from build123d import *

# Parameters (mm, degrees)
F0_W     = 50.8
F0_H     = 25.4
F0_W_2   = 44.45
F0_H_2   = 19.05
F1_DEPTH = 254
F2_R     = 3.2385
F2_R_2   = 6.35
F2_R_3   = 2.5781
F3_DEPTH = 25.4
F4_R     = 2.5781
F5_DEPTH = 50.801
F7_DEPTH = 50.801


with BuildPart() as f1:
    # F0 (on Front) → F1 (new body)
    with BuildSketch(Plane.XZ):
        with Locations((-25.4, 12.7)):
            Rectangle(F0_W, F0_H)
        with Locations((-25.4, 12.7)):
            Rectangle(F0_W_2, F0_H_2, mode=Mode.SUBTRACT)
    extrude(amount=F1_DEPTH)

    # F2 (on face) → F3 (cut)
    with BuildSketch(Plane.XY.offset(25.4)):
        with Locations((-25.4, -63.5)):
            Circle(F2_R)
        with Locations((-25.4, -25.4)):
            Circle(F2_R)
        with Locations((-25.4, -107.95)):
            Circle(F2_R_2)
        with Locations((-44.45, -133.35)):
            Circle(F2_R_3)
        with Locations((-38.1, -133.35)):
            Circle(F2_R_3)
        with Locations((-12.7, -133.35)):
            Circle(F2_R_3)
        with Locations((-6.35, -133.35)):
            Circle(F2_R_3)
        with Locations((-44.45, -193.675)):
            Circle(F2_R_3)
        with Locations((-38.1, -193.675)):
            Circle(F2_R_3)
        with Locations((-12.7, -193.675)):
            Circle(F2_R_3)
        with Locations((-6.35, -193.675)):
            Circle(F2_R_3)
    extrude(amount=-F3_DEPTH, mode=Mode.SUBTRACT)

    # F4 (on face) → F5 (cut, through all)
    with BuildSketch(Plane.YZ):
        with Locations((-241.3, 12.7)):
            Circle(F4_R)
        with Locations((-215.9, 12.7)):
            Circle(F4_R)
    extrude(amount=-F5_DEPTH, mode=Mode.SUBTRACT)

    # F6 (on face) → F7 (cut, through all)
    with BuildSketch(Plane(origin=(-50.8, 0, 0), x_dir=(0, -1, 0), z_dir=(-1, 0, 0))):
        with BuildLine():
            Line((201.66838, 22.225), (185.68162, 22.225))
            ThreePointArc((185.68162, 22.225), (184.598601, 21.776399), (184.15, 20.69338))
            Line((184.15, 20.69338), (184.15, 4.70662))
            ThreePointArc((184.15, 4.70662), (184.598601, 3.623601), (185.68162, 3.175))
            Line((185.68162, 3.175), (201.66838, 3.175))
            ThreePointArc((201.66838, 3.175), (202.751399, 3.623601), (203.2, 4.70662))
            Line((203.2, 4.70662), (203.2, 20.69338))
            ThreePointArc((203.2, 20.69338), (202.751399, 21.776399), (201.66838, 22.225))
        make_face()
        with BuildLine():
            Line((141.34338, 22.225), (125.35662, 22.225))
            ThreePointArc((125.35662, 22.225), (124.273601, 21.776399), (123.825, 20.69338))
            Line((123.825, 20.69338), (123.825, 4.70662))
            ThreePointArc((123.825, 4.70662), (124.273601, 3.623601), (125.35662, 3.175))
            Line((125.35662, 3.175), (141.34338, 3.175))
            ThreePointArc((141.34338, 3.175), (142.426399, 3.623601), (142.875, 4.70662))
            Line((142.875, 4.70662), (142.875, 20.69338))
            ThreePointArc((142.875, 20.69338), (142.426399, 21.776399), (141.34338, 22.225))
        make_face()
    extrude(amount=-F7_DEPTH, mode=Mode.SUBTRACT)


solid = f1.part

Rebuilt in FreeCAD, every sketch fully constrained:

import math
import FreeCAD as App
import Part
import Sketcher

V = App.Vector
Q = App.Units.Quantity


def add_polygon(sketch, points):
    """Adds a closed chain of lines whose ends are joined by coincident constraints."""
    first, n = sketch.GeometryCount, len(points)
    for a, b in zip(points, points[1:] + points[:1]):
        sketch.addGeometry(Part.LineSegment(App.Vector(*a, 0), App.Vector(*b, 0)), False)
    for i in range(n):
        sketch.addConstraint(Sketcher.Constraint("Coincident", first + i, 2, first + (i + 1) % n, 1))

doc = App.newDocument("Part")
body = doc.addObject("PartDesign::Body", "Body")

sketch1 = doc.addObject("Sketcher::SketchObject", "Sketch")
body.addObject(sketch1)
sketch1.AttachmentSupport = (doc.XZ_Plane, [""])
sketch1.MapMode = "FlatFace"
add_polygon(sketch1, [(-50.8, 25.4), (-50.8, 0), (0, 0), (0, 25.4)])
add_polygon(sketch1, [(-3.175, 3.175), (-47.625, 3.175), (-47.625, 22.225), (-3.175, 22.225)])
sketch1.addConstraint([
    Sketcher.Constraint("Vertical", 0),
    Sketcher.Constraint("Horizontal", 1),
    Sketcher.Constraint("Vertical", 2),
    Sketcher.Constraint("Horizontal", 3),
    Sketcher.Constraint("Horizontal", 4),
    Sketcher.Constraint("Vertical", 5),
    Sketcher.Constraint("Horizontal", 6),
    Sketcher.Constraint("Vertical", 7),
    Sketcher.Constraint("Coincident", 1, 2, -1, 1),
    Sketcher.Constraint("DistanceX", 1, 1, 1, 2, Q("2 in")),
    Sketcher.Constraint("DistanceY", 0, 2, 0, 1, Q("1 in")),
    Sketcher.Constraint("DistanceX", 4, 2, 4, 1, Q("1.75 in")),
    Sketcher.Constraint("DistanceY", 5, 1, 5, 2, Q("0.75 in")),
    Sketcher.Constraint("DistanceX", 4, 2, -1, 1, Q("1.875 in")),
    Sketcher.Constraint("DistanceY", -1, 1, 4, 2, Q("0.125 in")),
])
pad1 = doc.addObject("PartDesign::Pad", "Pad")
body.addObject(pad1)
pad1.Profile = sketch1
pad1.Length = Q("10 in")

sketch2 = doc.addObject("Sketcher::SketchObject", "Sketch001")
body.addObject(sketch2)
sketch2.AttachmentSupport = (doc.XY_Plane, [""])
sketch2.MapMode = "FlatFace"
sketch2.AttachmentOffset = App.Placement(V(0, 0, 1 * 25.4), App.Rotation())
sketch2.addGeometry([
    Part.Circle(V(-25.4, -63.5, 0), V(0, 0, 1), 3.2385),
    Part.Circle(V(-25.4, -25.4, 0), V(0, 0, 1), 3.2385),
    Part.Circle(V(-25.4, -107.95, 0), V(0, 0, 1), 6.35),
    Part.Circle(V(-44.45, -133.35, 0), V(0, 0, 1), 2.5781),
    Part.Circle(V(-38.1, -133.35, 0), V(0, 0, 1), 2.5781),
    Part.Circle(V(-12.7, -133.35, 0), V(0, 0, 1), 2.5781),
    Part.Circle(V(-6.35, -133.35, 0), V(0, 0, 1), 2.5781),
    Part.Circle(V(-44.45, -193.675, 0), V(0, 0, 1), 2.5781),
    Part.Circle(V(-38.1, -193.675, 0), V(0, 0, 1), 2.5781),
    Part.Circle(V(-12.7, -193.675, 0), V(0, 0, 1), 2.5781),
    Part.Circle(V(-6.35, -193.675, 0), V(0, 0, 1), 2.5781),
], False)
sketch2.addConstraint([
    Sketcher.Constraint("Equal", 0, 1),
    Sketcher.Constraint("Equal", 3, 4),
    Sketcher.Constraint("Equal", 4, 5),
    Sketcher.Constraint("Equal", 5, 6),
    Sketcher.Constraint("Equal", 6, 7),
    Sketcher.Constraint("Equal", 7, 8),
    Sketcher.Constraint("Equal", 8, 9),
    Sketcher.Constraint("Equal", 9, 10),
    Sketcher.Constraint("Horizontal", 3, 3, 4, 3),
    Sketcher.Constraint("Horizontal", 4, 3, 5, 3),
    Sketcher.Constraint("Horizontal", 5, 3, 6, 3),
    Sketcher.Constraint("Horizontal", 7, 3, 8, 3),
    Sketcher.Constraint("Horizontal", 8, 3, 9, 3),
    Sketcher.Constraint("Horizontal", 9, 3, 10, 3),
    Sketcher.Constraint("Vertical", 0, 3, 1, 3),
    Sketcher.Constraint("Vertical", 1, 3, 2, 3),
    Sketcher.Constraint("Vertical", 3, 3, 7, 3),
    Sketcher.Constraint("Vertical", 4, 3, 8, 3),
    Sketcher.Constraint("Vertical", 5, 3, 9, 3),
    Sketcher.Constraint("Vertical", 6, 3, 10, 3),
    Sketcher.Constraint("Diameter", 2, Q("0.5 in")),
    Sketcher.Constraint("Diameter", 0, Q("0.255 in")),
    Sketcher.Constraint("Diameter", 3, Q("0.203 in")),
    Sketcher.Constraint("DistanceX", 0, 3, -1, 1, Q("1 in")),
    Sketcher.Constraint("DistanceY", 1, 3, -1, 1, Q("1 in")),
    Sketcher.Constraint("DistanceY", 3, 3, 2, 3, Q("1 in")),
    Sketcher.Constraint("DistanceX", 4, 3, 5, 3, Q("1 in")),
    Sketcher.Constraint("DistanceY", 0, 3, -1, 1, Q("2.5 in")),
    Sketcher.Constraint("DistanceX", 4, 3, -1, 1, Q("1.5 in")),
    Sketcher.Constraint("DistanceX", 3, 3, 6, 3, Q("1.5 in")),
    Sketcher.Constraint("DistanceY", 2, 3, -1, 1, Q("4.25 in")),
    Sketcher.Constraint("DistanceX", 3, 3, -1, 1, Q("1.75 in")),
    Sketcher.Constraint("DistanceY", 7, 3, -1, 1, Q("7.625 in")),
])
pocket1 = doc.addObject("PartDesign::Pocket", "Pocket")
body.addObject(pocket1)
pocket1.Profile = sketch2
pocket1.Length = Q("1 in")

sketch3 = doc.addObject("Sketcher::SketchObject", "Sketch002")
body.addObject(sketch3)
sketch3.AttachmentSupport = (doc.YZ_Plane, [""])
sketch3.MapMode = "FlatFace"
sketch3.addGeometry([
    Part.Circle(V(-241.3, 12.7, 0), V(0, 0, 1), 2.5781),
    Part.Circle(V(-215.9, 12.7, 0), V(0, 0, 1), 2.5781),
], False)
sketch3.addConstraint([
    Sketcher.Constraint("Equal", 0, 1),
    Sketcher.Constraint("Horizontal", 0, 3, 1, 3),
    Sketcher.Constraint("Diameter", 0, Q("0.203 in")),
    Sketcher.Constraint("DistanceX", 0, 3, 1, 3, Q("1 in")),
    Sketcher.Constraint("DistanceX", 0, 3, -1, 1, Q("9.5 in")),
    Sketcher.Constraint("DistanceY", -1, 1, 0, 3, Q("0.5 in")),
])
pocket2 = doc.addObject("PartDesign::Pocket", "Pocket001")
body.addObject(pocket2)
pocket2.Profile = sketch3
pocket2.Type = "ThroughAll"

sketch4 = doc.addObject("Sketcher::SketchObject", "Sketch003")
body.addObject(sketch4)
sketch4.AttachmentSupport = (doc.YZ_Plane, [""])
sketch4.MapMode = "FlatFace"
sketch4.AttachmentOffset = App.Placement(V(0, 0, -2 * 25.4), App.Rotation())
sketch4.addGeometry([
    Part.LineSegment(V(-201.66838, 22.225, 0), V(-185.68162, 22.225, 0)),
    Part.ArcOfCircle(Part.Circle(V(-185.68162, 20.69338, 0), V(0, 0, 1), 1.53162), math.radians(-0.000014), math.radians(90.000014)),
    Part.LineSegment(V(-184.15, 20.69338, 0), V(-184.15, 4.70662, 0)),
    Part.ArcOfCircle(Part.Circle(V(-185.68162, 4.70662, 0), V(0, 0, 1), 1.53162), math.radians(-90.000014), math.radians(0.000014)),
    Part.LineSegment(V(-185.68162, 3.175, 0), V(-201.66838, 3.175, 0)),
    Part.ArcOfCircle(Part.Circle(V(-201.66838, 4.70662, 0), V(0, 0, 1), 1.53162), math.radians(179.999986), math.radians(270.000014)),
    Part.LineSegment(V(-203.2, 4.70662, 0), V(-203.2, 20.69338, 0)),
    Part.ArcOfCircle(Part.Circle(V(-201.66838, 20.69338, 0), V(0, 0, 1), 1.53162), math.radians(89.999986), math.radians(180.000014)),
    Part.LineSegment(V(-141.34338, 22.225, 0), V(-125.35662, 22.225, 0)),
    Part.ArcOfCircle(Part.Circle(V(-125.35662, 20.69338, 0), V(0, 0, 1), 1.53162), math.radians(-0.000014), math.radians(90.000014)),
    Part.LineSegment(V(-123.825, 20.69338, 0), V(-123.825, 4.70662, 0)),
    Part.ArcOfCircle(Part.Circle(V(-125.35662, 4.70662, 0), V(0, 0, 1), 1.53162), math.radians(-90.000014), math.radians(0.000014)),
    Part.LineSegment(V(-125.35662, 3.175, 0), V(-141.34338, 3.175, 0)),
    Part.ArcOfCircle(Part.Circle(V(-141.34338, 4.70662, 0), V(0, 0, 1), 1.53162), math.radians(179.999986), math.radians(270.000014)),
    Part.LineSegment(V(-142.875, 4.70662, 0), V(-142.875, 20.69338, 0)),
    Part.ArcOfCircle(Part.Circle(V(-141.34338, 20.69338, 0), V(0, 0, 1), 1.53162), math.radians(89.999986), math.radians(180.000014)),
], False)
sketch4.addConstraint([
    Sketcher.Constraint("Tangent", 0, 2, 1, 2),
    Sketcher.Constraint("Tangent", 1, 1, 2, 1),
    Sketcher.Constraint("Tangent", 2, 2, 3, 2),
    Sketcher.Constraint("Tangent", 3, 1, 4, 1),
    Sketcher.Constraint("Tangent", 4, 2, 5, 2),
    Sketcher.Constraint("Tangent", 5, 1, 6, 1),
    Sketcher.Constraint("Tangent", 6, 2, 7, 2),
    Sketcher.Constraint("Tangent", 7, 1, 0, 1),
    Sketcher.Constraint("Tangent", 8, 2, 9, 2),
    Sketcher.Constraint("Tangent", 9, 1, 10, 1),
    Sketcher.Constraint("Tangent", 10, 2, 11, 2),
    Sketcher.Constraint("Tangent", 11, 1, 12, 1),
    Sketcher.Constraint("Tangent", 12, 2, 13, 2),
    Sketcher.Constraint("Tangent", 13, 1, 14, 1),
    Sketcher.Constraint("Tangent", 14, 2, 15, 2),
    Sketcher.Constraint("Tangent", 15, 1, 8, 1),
    Sketcher.Constraint("Horizontal", 0),
    Sketcher.Constraint("Vertical", 2),
    Sketcher.Constraint("Horizontal", 4),
    Sketcher.Constraint("Vertical", 6),
    Sketcher.Constraint("Horizontal", 8),
    Sketcher.Constraint("Vertical", 10),
    Sketcher.Constraint("Horizontal", 12),
    Sketcher.Constraint("Vertical", 14),
    Sketcher.Constraint("Equal", 1, 3),
    Sketcher.Constraint("Equal", 3, 5),
    Sketcher.Constraint("Equal", 5, 7),
    Sketcher.Constraint("Equal", 7, 9),
    Sketcher.Constraint("Equal", 9, 11),
    Sketcher.Constraint("Equal", 11, 13),
    Sketcher.Constraint("Equal", 13, 15),
    Sketcher.Constraint("Horizontal", 7, 3, 9, 3),
    Sketcher.Constraint("Horizontal", 5, 3, 11, 3),
    Sketcher.Constraint("Equal", 4, 8),
    Sketcher.Constraint("Equal", 12, 2),
    Sketcher.Constraint("DistanceX", 5, 1, -1, 1, Q("8 in")),
    Sketcher.Constraint("Radius", 1, Q("0.0603 in")),
    Sketcher.Constraint("DistanceX", 1, 1, -1, 1, Q("7.25 in")),
    Sketcher.Constraint("DistanceY", -1, 1, 0, 2, Q("0.875 in")),
    Sketcher.Constraint("DistanceX", 9, 1, -1, 1, Q("4.875 in")),
])
pocket3 = doc.addObject("PartDesign::Pocket", "Pocket002")
body.addObject(pocket3)
pocket3.Profile = sketch4
pocket3.Type = "ThroughAll"
pocket3.Reversed = True

doc.recompute()
